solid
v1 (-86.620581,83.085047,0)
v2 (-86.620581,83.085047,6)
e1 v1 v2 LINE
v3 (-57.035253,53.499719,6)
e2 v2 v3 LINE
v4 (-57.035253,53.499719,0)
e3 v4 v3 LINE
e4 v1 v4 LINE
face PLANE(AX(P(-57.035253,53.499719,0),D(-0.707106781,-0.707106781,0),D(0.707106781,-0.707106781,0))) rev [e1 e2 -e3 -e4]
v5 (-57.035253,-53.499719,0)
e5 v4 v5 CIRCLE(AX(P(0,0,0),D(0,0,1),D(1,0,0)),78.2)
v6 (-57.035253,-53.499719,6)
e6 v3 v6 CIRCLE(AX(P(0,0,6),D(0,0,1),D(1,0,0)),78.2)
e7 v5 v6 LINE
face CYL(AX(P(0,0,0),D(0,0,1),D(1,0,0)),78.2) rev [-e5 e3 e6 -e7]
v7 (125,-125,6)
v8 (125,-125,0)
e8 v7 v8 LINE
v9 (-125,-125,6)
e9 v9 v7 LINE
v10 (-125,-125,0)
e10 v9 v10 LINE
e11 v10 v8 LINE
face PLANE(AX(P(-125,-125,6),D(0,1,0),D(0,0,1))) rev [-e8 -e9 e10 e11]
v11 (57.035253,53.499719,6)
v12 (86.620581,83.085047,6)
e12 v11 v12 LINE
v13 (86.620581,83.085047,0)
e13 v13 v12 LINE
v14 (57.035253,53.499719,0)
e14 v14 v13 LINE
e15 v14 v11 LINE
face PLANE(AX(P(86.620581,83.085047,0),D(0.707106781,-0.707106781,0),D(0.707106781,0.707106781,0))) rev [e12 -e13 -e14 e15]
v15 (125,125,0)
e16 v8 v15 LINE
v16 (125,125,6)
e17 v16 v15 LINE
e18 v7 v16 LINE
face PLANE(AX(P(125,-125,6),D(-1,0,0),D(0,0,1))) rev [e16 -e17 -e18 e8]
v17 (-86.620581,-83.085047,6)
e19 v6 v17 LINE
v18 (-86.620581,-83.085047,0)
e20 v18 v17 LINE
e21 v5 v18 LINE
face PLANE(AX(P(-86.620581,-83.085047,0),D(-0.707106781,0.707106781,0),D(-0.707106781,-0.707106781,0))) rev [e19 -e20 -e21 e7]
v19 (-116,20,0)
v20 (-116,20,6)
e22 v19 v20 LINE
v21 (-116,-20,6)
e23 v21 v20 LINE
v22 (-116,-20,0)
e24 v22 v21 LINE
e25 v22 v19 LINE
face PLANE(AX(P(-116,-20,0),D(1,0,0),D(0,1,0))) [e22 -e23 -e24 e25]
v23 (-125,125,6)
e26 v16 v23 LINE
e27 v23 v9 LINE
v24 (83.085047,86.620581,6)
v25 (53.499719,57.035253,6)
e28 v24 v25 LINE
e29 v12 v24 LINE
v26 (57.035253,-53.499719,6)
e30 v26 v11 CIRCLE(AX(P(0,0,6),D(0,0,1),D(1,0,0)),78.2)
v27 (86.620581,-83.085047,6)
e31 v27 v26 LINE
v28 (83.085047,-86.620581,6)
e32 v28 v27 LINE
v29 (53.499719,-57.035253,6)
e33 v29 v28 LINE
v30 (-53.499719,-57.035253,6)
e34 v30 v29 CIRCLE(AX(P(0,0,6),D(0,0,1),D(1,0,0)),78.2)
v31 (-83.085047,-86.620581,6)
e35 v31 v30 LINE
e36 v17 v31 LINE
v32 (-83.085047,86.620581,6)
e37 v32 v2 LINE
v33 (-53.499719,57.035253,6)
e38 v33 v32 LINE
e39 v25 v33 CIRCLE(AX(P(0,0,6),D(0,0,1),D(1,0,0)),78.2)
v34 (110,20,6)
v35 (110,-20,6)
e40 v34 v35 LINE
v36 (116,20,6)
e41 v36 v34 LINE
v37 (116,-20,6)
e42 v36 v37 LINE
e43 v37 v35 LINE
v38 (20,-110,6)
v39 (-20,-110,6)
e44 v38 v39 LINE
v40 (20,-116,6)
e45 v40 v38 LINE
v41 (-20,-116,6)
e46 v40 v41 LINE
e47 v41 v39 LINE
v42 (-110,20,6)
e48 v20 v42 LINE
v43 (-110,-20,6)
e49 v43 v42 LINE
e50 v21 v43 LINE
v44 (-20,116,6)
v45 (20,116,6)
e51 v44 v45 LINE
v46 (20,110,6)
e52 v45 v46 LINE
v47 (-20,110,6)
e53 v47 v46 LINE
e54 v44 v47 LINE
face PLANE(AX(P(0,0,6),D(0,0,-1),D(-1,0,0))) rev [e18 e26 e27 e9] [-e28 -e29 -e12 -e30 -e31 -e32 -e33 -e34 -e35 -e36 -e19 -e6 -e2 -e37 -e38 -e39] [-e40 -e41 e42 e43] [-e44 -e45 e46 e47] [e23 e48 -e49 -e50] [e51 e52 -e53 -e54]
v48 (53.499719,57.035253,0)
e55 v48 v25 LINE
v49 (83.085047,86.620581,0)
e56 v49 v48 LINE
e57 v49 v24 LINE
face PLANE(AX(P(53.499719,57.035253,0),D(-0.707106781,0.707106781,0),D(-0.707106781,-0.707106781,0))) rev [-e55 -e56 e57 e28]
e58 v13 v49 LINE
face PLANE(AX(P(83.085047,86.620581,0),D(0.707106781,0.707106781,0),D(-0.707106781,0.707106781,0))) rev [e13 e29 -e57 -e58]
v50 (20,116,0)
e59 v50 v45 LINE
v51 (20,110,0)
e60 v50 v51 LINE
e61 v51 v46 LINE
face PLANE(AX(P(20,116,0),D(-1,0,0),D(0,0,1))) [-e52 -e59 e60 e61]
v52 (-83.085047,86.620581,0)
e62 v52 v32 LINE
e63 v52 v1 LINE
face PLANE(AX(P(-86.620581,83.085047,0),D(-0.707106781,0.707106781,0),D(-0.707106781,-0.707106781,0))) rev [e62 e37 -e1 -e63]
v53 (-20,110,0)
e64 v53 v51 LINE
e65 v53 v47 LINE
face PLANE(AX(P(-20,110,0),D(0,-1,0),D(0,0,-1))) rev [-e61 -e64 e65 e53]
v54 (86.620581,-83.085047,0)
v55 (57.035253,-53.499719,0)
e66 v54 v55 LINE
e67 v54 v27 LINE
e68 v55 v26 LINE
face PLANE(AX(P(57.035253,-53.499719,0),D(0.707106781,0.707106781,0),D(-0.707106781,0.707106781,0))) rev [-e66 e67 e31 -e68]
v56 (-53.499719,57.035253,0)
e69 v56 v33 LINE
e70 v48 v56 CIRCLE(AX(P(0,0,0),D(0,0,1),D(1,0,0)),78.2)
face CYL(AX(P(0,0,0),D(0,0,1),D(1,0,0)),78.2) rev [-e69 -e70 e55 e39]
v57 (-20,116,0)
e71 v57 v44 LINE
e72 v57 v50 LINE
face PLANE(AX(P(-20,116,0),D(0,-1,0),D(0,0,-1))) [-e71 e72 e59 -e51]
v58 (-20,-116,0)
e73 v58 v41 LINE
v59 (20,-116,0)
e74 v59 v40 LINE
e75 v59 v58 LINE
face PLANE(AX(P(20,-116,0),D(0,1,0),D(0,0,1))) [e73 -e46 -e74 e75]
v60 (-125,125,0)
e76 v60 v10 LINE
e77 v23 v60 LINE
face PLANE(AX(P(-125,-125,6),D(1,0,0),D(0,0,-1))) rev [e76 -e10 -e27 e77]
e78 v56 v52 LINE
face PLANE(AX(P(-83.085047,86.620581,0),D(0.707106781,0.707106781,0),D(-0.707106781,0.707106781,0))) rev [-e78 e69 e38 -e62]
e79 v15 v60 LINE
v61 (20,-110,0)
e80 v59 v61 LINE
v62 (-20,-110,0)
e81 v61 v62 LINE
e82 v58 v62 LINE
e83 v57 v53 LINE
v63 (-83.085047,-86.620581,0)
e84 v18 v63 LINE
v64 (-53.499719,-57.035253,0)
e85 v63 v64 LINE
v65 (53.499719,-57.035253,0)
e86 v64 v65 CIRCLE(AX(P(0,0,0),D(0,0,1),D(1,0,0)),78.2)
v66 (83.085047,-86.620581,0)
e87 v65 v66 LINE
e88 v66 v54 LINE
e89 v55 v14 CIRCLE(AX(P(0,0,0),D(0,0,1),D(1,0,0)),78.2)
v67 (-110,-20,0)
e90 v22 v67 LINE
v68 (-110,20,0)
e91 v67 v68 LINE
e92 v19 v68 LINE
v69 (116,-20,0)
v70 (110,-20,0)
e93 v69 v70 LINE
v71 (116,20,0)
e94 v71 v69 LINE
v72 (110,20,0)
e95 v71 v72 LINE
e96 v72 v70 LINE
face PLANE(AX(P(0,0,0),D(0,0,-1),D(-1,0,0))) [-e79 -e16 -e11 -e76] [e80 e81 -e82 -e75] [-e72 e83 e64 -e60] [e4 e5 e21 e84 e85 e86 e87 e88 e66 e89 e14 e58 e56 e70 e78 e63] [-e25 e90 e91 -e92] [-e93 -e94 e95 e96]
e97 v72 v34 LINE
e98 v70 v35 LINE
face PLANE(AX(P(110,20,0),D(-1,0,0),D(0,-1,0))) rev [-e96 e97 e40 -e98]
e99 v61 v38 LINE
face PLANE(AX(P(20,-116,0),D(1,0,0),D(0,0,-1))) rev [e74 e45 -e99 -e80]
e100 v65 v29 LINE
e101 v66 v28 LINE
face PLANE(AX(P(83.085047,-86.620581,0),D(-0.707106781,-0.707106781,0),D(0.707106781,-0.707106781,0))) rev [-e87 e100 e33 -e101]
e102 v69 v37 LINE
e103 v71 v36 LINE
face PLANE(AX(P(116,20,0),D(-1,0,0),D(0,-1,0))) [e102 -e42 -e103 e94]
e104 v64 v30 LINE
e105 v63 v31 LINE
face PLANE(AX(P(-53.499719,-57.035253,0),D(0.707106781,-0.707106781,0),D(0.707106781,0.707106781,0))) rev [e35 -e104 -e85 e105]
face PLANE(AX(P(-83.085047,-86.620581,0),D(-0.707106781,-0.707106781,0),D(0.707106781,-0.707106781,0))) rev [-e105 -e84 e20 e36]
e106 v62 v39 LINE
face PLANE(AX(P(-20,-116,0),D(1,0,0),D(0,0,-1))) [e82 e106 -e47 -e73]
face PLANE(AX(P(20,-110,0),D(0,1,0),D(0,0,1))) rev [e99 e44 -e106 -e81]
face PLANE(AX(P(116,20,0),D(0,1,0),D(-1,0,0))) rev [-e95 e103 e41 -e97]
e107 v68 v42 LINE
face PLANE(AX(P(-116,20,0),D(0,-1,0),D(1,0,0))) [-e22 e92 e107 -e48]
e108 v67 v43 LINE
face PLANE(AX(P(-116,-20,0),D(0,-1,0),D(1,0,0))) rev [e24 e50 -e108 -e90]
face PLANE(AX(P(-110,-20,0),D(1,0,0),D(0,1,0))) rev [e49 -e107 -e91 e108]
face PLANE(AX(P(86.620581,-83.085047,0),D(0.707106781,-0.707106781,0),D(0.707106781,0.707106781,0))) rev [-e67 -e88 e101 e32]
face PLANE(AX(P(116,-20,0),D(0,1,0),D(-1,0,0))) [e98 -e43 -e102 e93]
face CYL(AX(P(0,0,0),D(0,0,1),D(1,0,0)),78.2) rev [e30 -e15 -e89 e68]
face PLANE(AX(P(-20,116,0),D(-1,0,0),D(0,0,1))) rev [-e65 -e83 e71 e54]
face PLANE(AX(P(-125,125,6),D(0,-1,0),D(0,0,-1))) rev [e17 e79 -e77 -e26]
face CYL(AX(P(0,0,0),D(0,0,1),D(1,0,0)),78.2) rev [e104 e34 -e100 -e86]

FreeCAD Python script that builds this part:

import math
import FreeCAD as App
import Part
import Sketcher
from FreeCAD import Vector
Q = App.Units.Quantity

doc = App.newDocument("Part")
params = doc.addObject("Spreadsheet::Sheet", "Params")
for row, (alias, value) in enumerate([
    ("sketch1_width", "250 mm"),
    ("pad1_length", "6 mm"),
    ("sketch2_diameter", "156.4 mm"),
    ("sketch3_radius", "78.2 mm"),
    ("sketch3_length", "5 mm"),
    ("sketch4_width", "40 mm"),
    ("sketch4_height", "6 mm"),
], start=1):
    params.set(f"A{row}", alias)
    params.set(f"B{row}", "=" + value)
    params.setAlias(f"B{row}", alias)

body = doc.addObject("PartDesign::Body", "Body")

# Sketch on XY plane
sketch1 = doc.addObject("Sketcher::SketchObject", "Sketch")
body.addObject(sketch1)
sketch1.AttachmentSupport = (doc.XY_Plane, [""])
sketch1.MapMode = "FlatFace"
sketch1.addGeometry([
    Part.LineSegment(Vector(-125, 125, 0), Vector(-125, -125, 0)),
    Part.LineSegment(Vector(-125, -125, 0), Vector(125, -125, 0)),
    Part.LineSegment(Vector(125, -125, 0), Vector(125, 125, 0)),
    Part.LineSegment(Vector(125, 125, 0), Vector(-125, 125, 0)),
], False)
sketch1.addConstraint([
    Sketcher.Constraint("Coincident", 0, 2, 1, 1),
    Sketcher.Constraint("Coincident", 1, 2, 2, 1),
    Sketcher.Constraint("Coincident", 2, 2, 3, 1),
    Sketcher.Constraint("Coincident", 3, 2, 0, 1),
    Sketcher.Constraint("Vertical", 0),
    Sketcher.Constraint("Horizontal", 1),
    Sketcher.Constraint("Vertical", 2),
    Sketcher.Constraint("Horizontal", 3),
    Sketcher.Constraint("Symmetric", 0, 2, 2, 2, -1, 1),
    Sketcher.Constraint("Equal", 3, 0),
    Sketcher.Constraint("DistanceX", 1, 1, 1, 2, Q("250 mm")),
])
sketch1.setExpression("Constraints[10]", "Params.sketch1_width")
pad1 = doc.addObject("PartDesign::Pad", "Pad")
body.addObject(pad1)
pad1.Profile = sketch1
pad1.setExpression("Length", "Params.pad1_length")

# Sketch on XY plane
sketch2 = doc.addObject("Sketcher::SketchObject", "Sketch001")
body.addObject(sketch2)
sketch2.AttachmentSupport = (doc.XY_Plane, [""])
sketch2.MapMode = "FlatFace"
sketch2.AttachmentOffset = App.Placement(Vector(0, 0, 6), App.Rotation())
sketch2.addGeometry(Part.Circle(Vector(0, 0, 0), Vector(0, 0, 1), 78), False)
sketch2.addConstraint([
    Sketcher.Constraint("Coincident", 0, 3, -1, 1),
    Sketcher.Constraint("Diameter", 0, Q("156.4 mm")),
])
sketch2.setExpression("Constraints[1]", "Params.sketch2_diameter")
pocket1 = doc.addObject("PartDesign::Pocket", "Pocket")
body.addObject(pocket1)
pocket1.Profile = sketch2
pocket1.Type = "ThroughAll"

# Sketch on XY plane
sketch3 = doc.addObject("Sketcher::SketchObject", "Sketch002")
body.addObject(sketch3)
sketch3.AttachmentSupport = (doc.XY_Plane, [""])
sketch3.MapMode = "FlatFace"
sketch3.AttachmentOffset = App.Placement(Vector(0, 0, 6), App.Rotation())
sketch3.addGeometry([
    Part.LineSegment(Vector(-87, 83, 0), Vector(-57, 53, 0)),
    Part.ArcOfCircle(Part.Circle(Vector(0, 0, 0), Vector(0, 0, 1), 78), math.radians(133.17), math.radians(136.83)),
    Part.LineSegment(Vector(-53, 57, 0), Vector(-83, 87, 0)),
    Part.LineSegment(Vector(-83, 87, 0), Vector(-87, 83, 0)),
], False)
sketch3.addConstraint([
    Sketcher.Constraint("Coincident", 0, 2, 1, 2),
    Sketcher.Constraint("Coincident", 1, 1, 2, 1),
    Sketcher.Constraint("Coincident", 2, 2, 3, 1),
    Sketcher.Constraint("Coincident", 3, 2, 0, 1),
    Sketcher.Constraint("Coincident", 1, 3, -1, 1),
    Sketcher.Constraint("Parallel", 0, 2),
    Sketcher.Constraint("Perpendicular", 2, 3),
    Sketcher.Constraint("Equal", 0, 2),
    Sketcher.Constraint("Radius", 1, Q("78.2 mm")),
    Sketcher.Constraint("Angle", 0, Q("-45 deg")),
    Sketcher.Constraint("Distance", 3, Q("5 mm")),
    Sketcher.Constraint("Distance", 0, Q("41.839972 mm")),
])
sketch3.setExpression("Constraints[8]", "Params.sketch3_radius")
sketch3.setExpression("Constraints[10]", "Params.sketch3_length")
pocket2 = doc.addObject("PartDesign::Pocket", "Pocket001")
body.addObject(pocket2)
pocket2.Profile = sketch3
pocket2.Type = "ThroughAll"
doc.recompute()

polarpattern = doc.addObject("PartDesign::PolarPattern", "PolarPattern")
body.addObject(polarpattern)
polarpattern.Originals = [pocket2]
polarpattern.Axis = (doc.Z_Axis, [""])
polarpattern.Angle = 360
polarpattern.Occurrences = 4
body.Tip = polarpattern

# Sketch on XY plane
sketch4 = doc.addObject("Sketcher::SketchObject", "Sketch003")
body.addObject(sketch4)
sketch4.AttachmentSupport = (doc.XY_Plane, [""])
sketch4.MapMode = "FlatFace"
sketch4.AttachmentOffset = App.Placement(Vector(0, 0, 6), App.Rotation())
sketch4.addGeometry([
    Part.LineSegment(Vector(-20, 116, 0), Vector(-20, 110, 0)),
    Part.LineSegment(Vector(-20, 110, 0), Vector(20, 110, 0)),
    Part.LineSegment(Vector(20, 110, 0), Vector(20, 116, 0)),
    Part.LineSegment(Vector(20, 116, 0), Vector(-20, 116, 0)),
], False)
sketch4.addConstraint([
    Sketcher.Constraint("Coincident", 0, 2, 1, 1),
    Sketcher.Constraint("Coincident", 1, 2, 2, 1),
    Sketcher.Constraint("Coincident", 2, 2, 3, 1),
    Sketcher.Constraint("Coincident", 3, 2, 0, 1),
    Sketcher.Constraint("Vertical", 0),
    Sketcher.Constraint("Horizontal", 1),
    Sketcher.Constraint("Vertical", 2),
    Sketcher.Constraint("Horizontal", 3),
    Sketcher.Constraint("DistanceX", 1, 1, 1, 2, Q("40 mm")),
    Sketcher.Constraint("DistanceY", 0, 2, 0, 1, Q("6 mm")),
    Sketcher.Constraint("DistanceX", 0, 2, -1, 1, Q("20 mm")),
    Sketcher.Constraint("DistanceY", -1, 1, 0, 2, Q("110 mm")),
])
sketch4.setExpression("Constraints[8]", "Params.sketch4_width")
sketch4.setExpression("Constraints[9]", "Params.sketch4_height")
pocket3 = doc.addObject("PartDesign::Pocket", "Pocket002")
body.addObject(pocket3)
pocket3.Profile = sketch4
pocket3.Type = "ThroughAll"
doc.recompute()

polarpattern2 = doc.addObject("PartDesign::PolarPattern", "PolarPattern001")
body.addObject(polarpattern2)
polarpattern2.Originals = [pocket3]
polarpattern2.Axis = (doc.Z_Axis, [""])
polarpattern2.Angle = 360
polarpattern2.Occurrences = 4
body.Tip = polarpattern2

doc.recompute()
